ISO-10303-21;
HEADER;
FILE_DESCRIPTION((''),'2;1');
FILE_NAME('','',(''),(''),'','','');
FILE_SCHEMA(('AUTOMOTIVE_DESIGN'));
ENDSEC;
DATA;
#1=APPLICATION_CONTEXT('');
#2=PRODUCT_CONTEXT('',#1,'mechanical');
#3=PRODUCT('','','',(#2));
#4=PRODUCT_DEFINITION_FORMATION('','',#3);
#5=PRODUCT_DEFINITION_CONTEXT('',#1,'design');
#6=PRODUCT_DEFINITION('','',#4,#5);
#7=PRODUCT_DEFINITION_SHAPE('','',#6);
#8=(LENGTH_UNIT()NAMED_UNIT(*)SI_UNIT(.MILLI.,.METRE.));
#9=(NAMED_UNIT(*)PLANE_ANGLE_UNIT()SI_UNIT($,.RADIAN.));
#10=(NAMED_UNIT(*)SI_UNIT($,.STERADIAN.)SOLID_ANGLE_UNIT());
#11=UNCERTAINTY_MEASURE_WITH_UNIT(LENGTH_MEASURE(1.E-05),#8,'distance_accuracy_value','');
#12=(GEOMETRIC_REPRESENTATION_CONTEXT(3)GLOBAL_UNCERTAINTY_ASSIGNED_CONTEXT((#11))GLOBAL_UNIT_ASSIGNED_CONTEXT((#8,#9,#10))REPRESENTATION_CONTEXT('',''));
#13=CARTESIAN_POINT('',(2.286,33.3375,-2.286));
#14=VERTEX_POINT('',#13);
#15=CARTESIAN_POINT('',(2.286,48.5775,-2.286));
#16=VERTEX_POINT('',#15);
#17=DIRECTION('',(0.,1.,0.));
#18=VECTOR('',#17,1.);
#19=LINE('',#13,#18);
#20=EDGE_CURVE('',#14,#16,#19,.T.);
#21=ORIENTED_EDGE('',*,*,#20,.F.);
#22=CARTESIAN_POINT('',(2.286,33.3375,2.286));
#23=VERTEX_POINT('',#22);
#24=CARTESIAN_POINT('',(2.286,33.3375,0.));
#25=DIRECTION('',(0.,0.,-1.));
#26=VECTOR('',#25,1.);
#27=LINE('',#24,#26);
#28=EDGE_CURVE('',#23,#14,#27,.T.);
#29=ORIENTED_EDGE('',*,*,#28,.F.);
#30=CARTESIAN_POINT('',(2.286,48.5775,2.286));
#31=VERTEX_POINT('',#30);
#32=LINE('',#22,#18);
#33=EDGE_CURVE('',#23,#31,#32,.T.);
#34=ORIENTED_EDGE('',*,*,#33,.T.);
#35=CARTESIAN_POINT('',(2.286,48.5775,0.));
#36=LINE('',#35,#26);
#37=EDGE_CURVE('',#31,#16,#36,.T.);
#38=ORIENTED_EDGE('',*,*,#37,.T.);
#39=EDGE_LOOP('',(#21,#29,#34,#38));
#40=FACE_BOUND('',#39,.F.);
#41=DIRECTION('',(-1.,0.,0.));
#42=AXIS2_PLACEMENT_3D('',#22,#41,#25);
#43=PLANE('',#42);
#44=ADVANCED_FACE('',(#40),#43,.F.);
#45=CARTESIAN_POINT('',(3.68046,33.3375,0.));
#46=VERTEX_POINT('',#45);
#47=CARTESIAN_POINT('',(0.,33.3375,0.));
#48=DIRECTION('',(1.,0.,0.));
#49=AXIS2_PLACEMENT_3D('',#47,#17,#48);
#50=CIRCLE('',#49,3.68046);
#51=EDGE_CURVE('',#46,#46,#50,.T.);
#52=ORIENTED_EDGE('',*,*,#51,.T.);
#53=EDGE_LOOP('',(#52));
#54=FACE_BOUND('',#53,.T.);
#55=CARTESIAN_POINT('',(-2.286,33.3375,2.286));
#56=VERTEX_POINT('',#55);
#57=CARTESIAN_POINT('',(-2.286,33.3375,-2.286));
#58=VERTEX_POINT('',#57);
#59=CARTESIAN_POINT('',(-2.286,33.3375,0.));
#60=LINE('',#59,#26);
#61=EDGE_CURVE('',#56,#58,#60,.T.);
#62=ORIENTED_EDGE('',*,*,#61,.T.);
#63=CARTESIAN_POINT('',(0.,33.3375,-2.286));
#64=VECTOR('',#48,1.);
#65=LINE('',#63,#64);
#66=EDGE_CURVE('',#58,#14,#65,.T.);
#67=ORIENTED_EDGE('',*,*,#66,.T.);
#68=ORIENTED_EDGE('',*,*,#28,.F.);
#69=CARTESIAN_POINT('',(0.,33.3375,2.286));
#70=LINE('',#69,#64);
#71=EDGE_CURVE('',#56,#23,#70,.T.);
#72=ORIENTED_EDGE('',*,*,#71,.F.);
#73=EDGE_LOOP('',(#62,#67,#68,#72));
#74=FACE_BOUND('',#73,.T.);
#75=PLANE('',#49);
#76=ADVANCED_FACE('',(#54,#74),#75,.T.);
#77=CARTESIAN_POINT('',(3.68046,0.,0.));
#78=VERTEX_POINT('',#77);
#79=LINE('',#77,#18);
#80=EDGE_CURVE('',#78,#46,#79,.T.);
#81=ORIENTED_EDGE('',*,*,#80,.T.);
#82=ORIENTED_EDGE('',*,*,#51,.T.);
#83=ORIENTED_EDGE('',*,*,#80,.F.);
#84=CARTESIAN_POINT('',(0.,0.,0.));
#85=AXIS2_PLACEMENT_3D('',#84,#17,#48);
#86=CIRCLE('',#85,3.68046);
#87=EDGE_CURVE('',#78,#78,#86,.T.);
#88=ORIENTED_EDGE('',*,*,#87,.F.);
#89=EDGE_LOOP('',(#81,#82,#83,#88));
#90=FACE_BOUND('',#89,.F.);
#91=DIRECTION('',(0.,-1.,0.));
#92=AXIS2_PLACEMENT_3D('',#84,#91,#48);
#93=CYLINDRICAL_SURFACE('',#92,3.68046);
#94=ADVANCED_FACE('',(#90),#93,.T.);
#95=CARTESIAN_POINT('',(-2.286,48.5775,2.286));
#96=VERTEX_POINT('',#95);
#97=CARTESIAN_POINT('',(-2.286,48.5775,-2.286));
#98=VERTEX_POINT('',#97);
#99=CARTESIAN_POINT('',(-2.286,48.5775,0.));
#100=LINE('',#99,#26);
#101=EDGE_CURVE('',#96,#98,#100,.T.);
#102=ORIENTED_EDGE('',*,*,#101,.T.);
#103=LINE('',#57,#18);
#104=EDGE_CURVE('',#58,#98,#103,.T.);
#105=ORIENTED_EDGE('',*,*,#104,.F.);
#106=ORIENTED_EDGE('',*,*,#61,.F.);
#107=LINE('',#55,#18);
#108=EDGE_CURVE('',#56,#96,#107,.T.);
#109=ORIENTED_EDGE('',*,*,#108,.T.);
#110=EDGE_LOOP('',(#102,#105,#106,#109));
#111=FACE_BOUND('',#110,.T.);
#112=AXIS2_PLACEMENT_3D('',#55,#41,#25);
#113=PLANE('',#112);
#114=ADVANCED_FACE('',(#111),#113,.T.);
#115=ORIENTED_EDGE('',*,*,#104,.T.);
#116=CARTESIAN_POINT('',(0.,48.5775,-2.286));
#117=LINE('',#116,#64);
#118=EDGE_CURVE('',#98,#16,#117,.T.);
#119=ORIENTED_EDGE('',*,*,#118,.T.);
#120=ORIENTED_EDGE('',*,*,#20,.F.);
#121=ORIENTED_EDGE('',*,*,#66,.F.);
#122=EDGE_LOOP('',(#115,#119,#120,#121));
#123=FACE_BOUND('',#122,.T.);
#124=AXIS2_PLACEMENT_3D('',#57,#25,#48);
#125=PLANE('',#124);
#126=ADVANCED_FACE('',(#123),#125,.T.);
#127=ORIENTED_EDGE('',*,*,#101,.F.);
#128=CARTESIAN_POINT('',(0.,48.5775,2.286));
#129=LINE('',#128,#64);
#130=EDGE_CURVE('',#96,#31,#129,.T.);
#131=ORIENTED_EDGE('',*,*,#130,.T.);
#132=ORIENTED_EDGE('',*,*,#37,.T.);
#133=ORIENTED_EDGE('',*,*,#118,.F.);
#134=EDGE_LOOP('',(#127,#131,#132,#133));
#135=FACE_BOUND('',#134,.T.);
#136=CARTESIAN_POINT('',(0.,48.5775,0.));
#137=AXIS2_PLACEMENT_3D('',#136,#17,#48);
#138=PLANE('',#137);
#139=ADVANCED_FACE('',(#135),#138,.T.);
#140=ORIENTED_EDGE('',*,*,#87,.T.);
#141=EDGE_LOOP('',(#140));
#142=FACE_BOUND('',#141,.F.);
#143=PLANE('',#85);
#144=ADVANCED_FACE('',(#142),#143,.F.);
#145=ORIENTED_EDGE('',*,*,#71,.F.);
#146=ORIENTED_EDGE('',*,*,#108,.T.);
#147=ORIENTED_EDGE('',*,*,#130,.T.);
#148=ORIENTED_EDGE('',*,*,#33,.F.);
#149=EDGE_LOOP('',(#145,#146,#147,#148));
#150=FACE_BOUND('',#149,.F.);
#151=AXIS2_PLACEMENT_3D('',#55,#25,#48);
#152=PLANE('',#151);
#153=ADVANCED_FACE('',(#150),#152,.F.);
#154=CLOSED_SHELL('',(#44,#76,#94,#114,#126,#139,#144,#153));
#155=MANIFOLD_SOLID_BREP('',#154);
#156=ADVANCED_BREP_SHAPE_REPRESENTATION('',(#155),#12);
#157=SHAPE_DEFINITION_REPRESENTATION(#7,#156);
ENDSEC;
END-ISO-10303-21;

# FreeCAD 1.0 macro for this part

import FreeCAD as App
import Part
import Sketcher

V = App.Vector
Q = App.Units.Quantity

doc = App.newDocument("Part")
body = doc.addObject("PartDesign::Body", "Body")

sketch1 = doc.addObject("Sketcher::SketchObject", "Sketch")
body.addObject(sketch1)
sketch1.AttachmentSupport = (doc.XZ_Plane, [""])
sketch1.MapMode = "FlatFace"
sketch1.addGeometry(Part.Circle(V(0, 0, 0), V(0, 0, 1), 3.7), False)
sketch1.addConstraint([
    Sketcher.Constraint("Coincident", 0, 3, -1, 1),
    Sketcher.Constraint("Diameter", 0, Q("0.2898 in")),
])
pad1 = doc.addObject("PartDesign::Pad", "Pad")
body.addObject(pad1)
pad1.Profile = sketch1
pad1.Length = Q("1.3125 in")
pad1.Reversed = True

sketch2 = doc.addObject("Sketcher::SketchObject", "Sketch001")
body.addObject(sketch2)
sketch2.AttachmentSupport = (doc.XZ_Plane, [""])
sketch2.MapMode = "FlatFace"
sketch2.AttachmentOffset = App.Placement(V(0, 0, -1.3125 * 25.4), App.Rotation())
sketch2.addGeometry([
    Part.LineSegment(V(-2.3, -2.3, 0), V(-2.3, 2.3, 0)),
    Part.LineSegment(V(-2.3, 2.3, 0), V(2.3, 2.3, 0)),
    Part.LineSegment(V(2.3, 2.3, 0), V(2.3, -2.3, 0)),
    Part.LineSegment(V(2.3, -2.3, 0), V(-2.3, -2.3, 0)),
], False)
sketch2.addConstraint([
    Sketcher.Constraint("Coincident", 0, 2, 1, 1),
    Sketcher.Constraint("Coincident", 1, 2, 2, 1),
    Sketcher.Constraint("Coincident", 2, 2, 3, 1),
    Sketcher.Constraint("Coincident", 3, 2, 0, 1),
    Sketcher.Constraint("Vertical", 0),
    Sketcher.Constraint("Horizontal", 1),
    Sketcher.Constraint("Vertical", 2),
    Sketcher.Constraint("Horizontal", 3),
    Sketcher.Constraint("Symmetric", 0, 2, 2, 2, -1, 1),
    Sketcher.Constraint("Equal", 3, 0),
    Sketcher.Constraint("DistanceX", 1, 1, 1, 2, Q("0.18 in")),
])
pad2 = doc.addObject("PartDesign::Pad", "Pad001")
body.addObject(pad2)
pad2.Profile = sketch2
pad2.Length = Q("0.6 in")
pad2.Reversed = True

doc.recompute()
